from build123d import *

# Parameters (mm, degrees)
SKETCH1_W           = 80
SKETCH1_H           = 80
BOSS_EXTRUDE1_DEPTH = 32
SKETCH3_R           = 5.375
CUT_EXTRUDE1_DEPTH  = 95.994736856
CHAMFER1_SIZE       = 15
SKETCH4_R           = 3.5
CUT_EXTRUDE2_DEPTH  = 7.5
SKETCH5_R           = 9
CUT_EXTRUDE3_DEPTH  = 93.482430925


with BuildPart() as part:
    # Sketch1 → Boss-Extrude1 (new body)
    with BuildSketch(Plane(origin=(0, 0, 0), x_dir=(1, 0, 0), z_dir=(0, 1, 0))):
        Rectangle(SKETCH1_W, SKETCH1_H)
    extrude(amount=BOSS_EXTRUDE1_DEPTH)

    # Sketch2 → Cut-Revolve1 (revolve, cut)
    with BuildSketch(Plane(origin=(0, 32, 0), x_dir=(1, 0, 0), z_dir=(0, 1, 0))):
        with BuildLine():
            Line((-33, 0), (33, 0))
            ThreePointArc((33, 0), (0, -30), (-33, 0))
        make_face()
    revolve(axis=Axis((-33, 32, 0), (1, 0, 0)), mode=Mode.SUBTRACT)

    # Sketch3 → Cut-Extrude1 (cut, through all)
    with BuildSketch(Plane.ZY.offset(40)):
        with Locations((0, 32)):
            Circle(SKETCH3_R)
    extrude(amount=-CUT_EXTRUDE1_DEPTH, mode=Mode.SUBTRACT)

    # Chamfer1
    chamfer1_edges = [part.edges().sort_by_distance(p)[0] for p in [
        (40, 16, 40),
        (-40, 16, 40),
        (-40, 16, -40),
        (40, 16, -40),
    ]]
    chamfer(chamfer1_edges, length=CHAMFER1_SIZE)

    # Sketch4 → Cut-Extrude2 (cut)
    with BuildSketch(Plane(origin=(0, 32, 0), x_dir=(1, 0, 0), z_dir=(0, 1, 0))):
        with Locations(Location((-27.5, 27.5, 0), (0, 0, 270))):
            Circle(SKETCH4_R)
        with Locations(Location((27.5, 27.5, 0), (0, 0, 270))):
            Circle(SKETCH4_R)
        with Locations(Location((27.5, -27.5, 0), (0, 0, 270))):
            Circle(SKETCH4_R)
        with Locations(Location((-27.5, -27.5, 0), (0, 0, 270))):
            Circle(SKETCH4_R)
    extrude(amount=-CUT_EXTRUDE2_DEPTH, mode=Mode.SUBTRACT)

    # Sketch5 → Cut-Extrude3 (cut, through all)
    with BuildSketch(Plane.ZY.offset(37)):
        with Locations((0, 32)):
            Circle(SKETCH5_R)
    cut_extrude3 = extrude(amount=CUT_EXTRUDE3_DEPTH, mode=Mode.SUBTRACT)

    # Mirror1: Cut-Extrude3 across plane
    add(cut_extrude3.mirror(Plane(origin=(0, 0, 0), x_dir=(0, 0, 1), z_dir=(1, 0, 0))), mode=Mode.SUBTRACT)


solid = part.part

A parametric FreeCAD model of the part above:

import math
import FreeCAD as App
import Part
import Sketcher


def edges_at(feature, points):
    """Names of the edges that pass closest to the given points."""
    edges = feature.Shape.Edges
    near = lambda p: min(range(len(edges)), key=lambda i: edges[i].distToShape(Part.Vertex(*p))[0])
    return sorted({f"Edge{near(p) + 1}" for p in points})

doc = App.newDocument("Part")
params = doc.addObject("Spreadsheet::Sheet", "Params")
for row, (alias, value) in enumerate([
    ("sketch1_width", "80 mm"),
    ("pad1_length", "32 mm"),
    ("sketch2_width", "66 mm"),
    ("sketch2_radius", "33.15 mm"),
    ("groove_angle", "360 deg"),
    ("sketch3_diameter", "10.75 mm"),
    ("chamfer_size", "15 mm"),
    ("sketch4_diameter", "7 mm"),
    ("pocket2_length", "7.5 mm"),
    ("sketch5_diameter", "18 mm"),
], start=1):
    params.set(f"A{row}", alias)
    params.set(f"B{row}", "=" + value)
    params.setAlias(f"B{row}", alias)

body = doc.addObject("PartDesign::Body", "Body")

sketch1 = body.newObject("Sketcher::SketchObject", "Sketch")
sketch1.AttachmentSupport = (doc.getObject("XZ_Plane"), [""])
sketch1.MapMode = "FlatFace"
sketch1.addGeometry([
    Part.LineSegment(App.Vector(-40, -40, 0), App.Vector(-40, 40, 0)),
    Part.LineSegment(App.Vector(-40, 40, 0), App.Vector(40, 40, 0)),
    Part.LineSegment(App.Vector(40, 40, 0), App.Vector(40, -40, 0)),
    Part.LineSegment(App.Vector(40, -40, 0), App.Vector(-40, -40, 0)),
], False)
sketch1.addConstraint([
    Sketcher.Constraint("Coincident", 0, 2, 1, 1),
    Sketcher.Constraint("Coincident", 1, 2, 2, 1),
    Sketcher.Constraint("Coincident", 2, 2, 3, 1),
    Sketcher.Constraint("Coincident", 3, 2, 0, 1),
    Sketcher.Constraint("Vertical", 0),
    Sketcher.Constraint("Horizontal", 1),
    Sketcher.Constraint("Vertical", 2),
    Sketcher.Constraint("Horizontal", 3),
    Sketcher.Constraint("Symmetric", 0, 2, 2, 2, -1, 1),
    Sketcher.Constraint("Equal", 3, 0),
    Sketcher.Constraint("DistanceX", 1, 1, 1, 2, 80.0),
])
sketch1.setExpression("Constraints[10]", "Params.sketch1_width")
pad1 = body.newObject("PartDesign::Pad", "Pad")
pad1.Profile = sketch1
pad1.setExpression("Length", "Params.pad1_length")
pad1.Reversed = True

sketch2 = body.newObject("Sketcher::SketchObject", "Sketch001")
sketch2.AttachmentSupport = (doc.getObject("XZ_Plane"), [""])
sketch2.MapMode = "FlatFace"
sketch2.AttachmentOffset = App.Placement(App.Vector(0, 0, -32), App.Rotation())
sketch2.addGeometry([
    Part.LineSegment(App.Vector(33, 0, 0), App.Vector(-33, 0, 0)),
    Part.ArcOfCircle(Part.Circle(App.Vector(0, -3, 0), App.Vector(0, 0, 1), 33), math.radians(5), math.radians(175)),
], False)
sketch2.addConstraint([
    Sketcher.Constraint("Coincident", 0, 1, 1, 1),
    Sketcher.Constraint("Coincident", 1, 2, 0, 2),
    Sketcher.Constraint("Horizontal", 0),
    Sketcher.Constraint("Symmetric", 0, 1, 1, 2, -1, 1),
    Sketcher.Constraint("DistanceX", 0, 2, 0, 1, 66.0),
    Sketcher.Constraint("Radius", 1, 33.15),
])
sketch2.setExpression("Constraints[4]", "Params.sketch2_width")
sketch2.setExpression("Constraints[5]", "Params.sketch2_radius")
groove = body.newObject("PartDesign::Groove", "Groove")
groove.Profile = sketch2
groove.ReferenceAxis = (sketch2, ["H_Axis"])
groove.setExpression("Angle", "Params.groove_angle")

sketch3 = body.newObject("Sketcher::SketchObject", "Sketch002")
sketch3.AttachmentSupport = (doc.getObject("YZ_Plane"), [""])
sketch3.MapMode = "FlatFace"
sketch3.AttachmentOffset = App.Placement(App.Vector(0, 0, -40), App.Rotation())
sketch3.addGeometry(Part.Circle(App.Vector(32, 0, 0), App.Vector(0, 0, 1), 5), False)
sketch3.addConstraint([
    Sketcher.Constraint("PointOnObject", 0, 3, -1),
    Sketcher.Constraint("Diameter", 0, 10.75),
    Sketcher.Constraint("DistanceX", -1, 1, 0, 3, 32.0),
])
sketch3.setExpression("Constraints[1]", "Params.sketch3_diameter")
pocket1 = body.newObject("PartDesign::Pocket", "Pocket")
pocket1.Profile = sketch3
pocket1.Type = "ThroughAll"
pocket1.Reversed = True
doc.recompute()

chamfer = body.newObject("PartDesign::Chamfer", "Chamfer")
chamfer.Base = (pocket1, edges_at(pocket1, [
    (40, 16, 40),
    (-40, 16, 40),
    (-40, 16, -40),
    (40, 16, -40),
]))
chamfer.setExpression("Size", "Params.chamfer_size")

sketch4 = body.newObject("Sketcher::SketchObject", "Sketch003")
sketch4.AttachmentSupport = (doc.getObject("XZ_Plane"), [""])
sketch4.MapMode = "FlatFace"
sketch4.AttachmentOffset = App.Placement(App.Vector(0, 0, -32), App.Rotation())
sketch4.addGeometry([
    Part.Circle(App.Vector(-27.5, -27.5, 0), App.Vector(0, 0, 1), 3.5),
    Part.Circle(App.Vector(27.5, -27.5, 0), App.Vector(0, 0, 1), 3.5),
    Part.Circle(App.Vector(27.5, 27.5, 0), App.Vector(0, 0, 1), 3.5),
    Part.Circle(App.Vector(-27.5, 27.5, 0), App.Vector(0, 0, 1), 3.5),
], False)
sketch4.addConstraint([
    Sketcher.Constraint("Equal", 0, 1),
    Sketcher.Constraint("Equal", 1, 2),
    Sketcher.Constraint("Equal", 2, 3),
    Sketcher.Constraint("Symmetric", 0, 3, 2, 3, -1, 1),
    Sketcher.Constraint("Symmetric", 1, 3, 3, 3, -1, 1),
    Sketcher.Constraint("Symmetric", 0, 3, 1, 3, -2),
    Sketcher.Constraint("Diameter", 0, 7.0),
    Sketcher.Constraint("DistanceX", 0, 3, 1, 3, 55.0),
    Sketcher.Constraint("DistanceY", 1, 3, 2, 3, 55.0),
])
sketch4.setExpression("Constraints[6]", "Params.sketch4_diameter")
pocket2 = body.newObject("PartDesign::Pocket", "Pocket001")
pocket2.Profile = sketch4
pocket2.setExpression("Length", "Params.pocket2_length")
pocket2.Reversed = True

sketch5 = body.newObject("Sketcher::SketchObject", "Sketch004")
sketch5.AttachmentSupport = (doc.getObject("YZ_Plane"), [""])
sketch5.MapMode = "FlatFace"
sketch5.AttachmentOffset = App.Placement(App.Vector(0, 0, -37), App.Rotation())
sketch5.addGeometry(Part.Circle(App.Vector(32, 0, 0), App.Vector(0, 0, 1), 9), False)
sketch5.addConstraint([
    Sketcher.Constraint("PointOnObject", 0, 3, -1),
    Sketcher.Constraint("Diameter", 0, 18.0),
    Sketcher.Constraint("DistanceX", -1, 1, 0, 3, 32.0),
])
sketch5.setExpression("Constraints[1]", "Params.sketch5_diameter")
pocket3 = body.newObject("PartDesign::Pocket", "Pocket002")
pocket3.Profile = sketch5
pocket3.Type = "ThroughAll"
doc.recompute()

mirrored = body.newObject("PartDesign::Mirrored", "Mirrored")
mirrored.Originals = [pocket3]
mirrored.MirrorPlane = (doc.getObject("YZ_Plane"), [""])
body.Tip = mirrored

doc.recompute()
